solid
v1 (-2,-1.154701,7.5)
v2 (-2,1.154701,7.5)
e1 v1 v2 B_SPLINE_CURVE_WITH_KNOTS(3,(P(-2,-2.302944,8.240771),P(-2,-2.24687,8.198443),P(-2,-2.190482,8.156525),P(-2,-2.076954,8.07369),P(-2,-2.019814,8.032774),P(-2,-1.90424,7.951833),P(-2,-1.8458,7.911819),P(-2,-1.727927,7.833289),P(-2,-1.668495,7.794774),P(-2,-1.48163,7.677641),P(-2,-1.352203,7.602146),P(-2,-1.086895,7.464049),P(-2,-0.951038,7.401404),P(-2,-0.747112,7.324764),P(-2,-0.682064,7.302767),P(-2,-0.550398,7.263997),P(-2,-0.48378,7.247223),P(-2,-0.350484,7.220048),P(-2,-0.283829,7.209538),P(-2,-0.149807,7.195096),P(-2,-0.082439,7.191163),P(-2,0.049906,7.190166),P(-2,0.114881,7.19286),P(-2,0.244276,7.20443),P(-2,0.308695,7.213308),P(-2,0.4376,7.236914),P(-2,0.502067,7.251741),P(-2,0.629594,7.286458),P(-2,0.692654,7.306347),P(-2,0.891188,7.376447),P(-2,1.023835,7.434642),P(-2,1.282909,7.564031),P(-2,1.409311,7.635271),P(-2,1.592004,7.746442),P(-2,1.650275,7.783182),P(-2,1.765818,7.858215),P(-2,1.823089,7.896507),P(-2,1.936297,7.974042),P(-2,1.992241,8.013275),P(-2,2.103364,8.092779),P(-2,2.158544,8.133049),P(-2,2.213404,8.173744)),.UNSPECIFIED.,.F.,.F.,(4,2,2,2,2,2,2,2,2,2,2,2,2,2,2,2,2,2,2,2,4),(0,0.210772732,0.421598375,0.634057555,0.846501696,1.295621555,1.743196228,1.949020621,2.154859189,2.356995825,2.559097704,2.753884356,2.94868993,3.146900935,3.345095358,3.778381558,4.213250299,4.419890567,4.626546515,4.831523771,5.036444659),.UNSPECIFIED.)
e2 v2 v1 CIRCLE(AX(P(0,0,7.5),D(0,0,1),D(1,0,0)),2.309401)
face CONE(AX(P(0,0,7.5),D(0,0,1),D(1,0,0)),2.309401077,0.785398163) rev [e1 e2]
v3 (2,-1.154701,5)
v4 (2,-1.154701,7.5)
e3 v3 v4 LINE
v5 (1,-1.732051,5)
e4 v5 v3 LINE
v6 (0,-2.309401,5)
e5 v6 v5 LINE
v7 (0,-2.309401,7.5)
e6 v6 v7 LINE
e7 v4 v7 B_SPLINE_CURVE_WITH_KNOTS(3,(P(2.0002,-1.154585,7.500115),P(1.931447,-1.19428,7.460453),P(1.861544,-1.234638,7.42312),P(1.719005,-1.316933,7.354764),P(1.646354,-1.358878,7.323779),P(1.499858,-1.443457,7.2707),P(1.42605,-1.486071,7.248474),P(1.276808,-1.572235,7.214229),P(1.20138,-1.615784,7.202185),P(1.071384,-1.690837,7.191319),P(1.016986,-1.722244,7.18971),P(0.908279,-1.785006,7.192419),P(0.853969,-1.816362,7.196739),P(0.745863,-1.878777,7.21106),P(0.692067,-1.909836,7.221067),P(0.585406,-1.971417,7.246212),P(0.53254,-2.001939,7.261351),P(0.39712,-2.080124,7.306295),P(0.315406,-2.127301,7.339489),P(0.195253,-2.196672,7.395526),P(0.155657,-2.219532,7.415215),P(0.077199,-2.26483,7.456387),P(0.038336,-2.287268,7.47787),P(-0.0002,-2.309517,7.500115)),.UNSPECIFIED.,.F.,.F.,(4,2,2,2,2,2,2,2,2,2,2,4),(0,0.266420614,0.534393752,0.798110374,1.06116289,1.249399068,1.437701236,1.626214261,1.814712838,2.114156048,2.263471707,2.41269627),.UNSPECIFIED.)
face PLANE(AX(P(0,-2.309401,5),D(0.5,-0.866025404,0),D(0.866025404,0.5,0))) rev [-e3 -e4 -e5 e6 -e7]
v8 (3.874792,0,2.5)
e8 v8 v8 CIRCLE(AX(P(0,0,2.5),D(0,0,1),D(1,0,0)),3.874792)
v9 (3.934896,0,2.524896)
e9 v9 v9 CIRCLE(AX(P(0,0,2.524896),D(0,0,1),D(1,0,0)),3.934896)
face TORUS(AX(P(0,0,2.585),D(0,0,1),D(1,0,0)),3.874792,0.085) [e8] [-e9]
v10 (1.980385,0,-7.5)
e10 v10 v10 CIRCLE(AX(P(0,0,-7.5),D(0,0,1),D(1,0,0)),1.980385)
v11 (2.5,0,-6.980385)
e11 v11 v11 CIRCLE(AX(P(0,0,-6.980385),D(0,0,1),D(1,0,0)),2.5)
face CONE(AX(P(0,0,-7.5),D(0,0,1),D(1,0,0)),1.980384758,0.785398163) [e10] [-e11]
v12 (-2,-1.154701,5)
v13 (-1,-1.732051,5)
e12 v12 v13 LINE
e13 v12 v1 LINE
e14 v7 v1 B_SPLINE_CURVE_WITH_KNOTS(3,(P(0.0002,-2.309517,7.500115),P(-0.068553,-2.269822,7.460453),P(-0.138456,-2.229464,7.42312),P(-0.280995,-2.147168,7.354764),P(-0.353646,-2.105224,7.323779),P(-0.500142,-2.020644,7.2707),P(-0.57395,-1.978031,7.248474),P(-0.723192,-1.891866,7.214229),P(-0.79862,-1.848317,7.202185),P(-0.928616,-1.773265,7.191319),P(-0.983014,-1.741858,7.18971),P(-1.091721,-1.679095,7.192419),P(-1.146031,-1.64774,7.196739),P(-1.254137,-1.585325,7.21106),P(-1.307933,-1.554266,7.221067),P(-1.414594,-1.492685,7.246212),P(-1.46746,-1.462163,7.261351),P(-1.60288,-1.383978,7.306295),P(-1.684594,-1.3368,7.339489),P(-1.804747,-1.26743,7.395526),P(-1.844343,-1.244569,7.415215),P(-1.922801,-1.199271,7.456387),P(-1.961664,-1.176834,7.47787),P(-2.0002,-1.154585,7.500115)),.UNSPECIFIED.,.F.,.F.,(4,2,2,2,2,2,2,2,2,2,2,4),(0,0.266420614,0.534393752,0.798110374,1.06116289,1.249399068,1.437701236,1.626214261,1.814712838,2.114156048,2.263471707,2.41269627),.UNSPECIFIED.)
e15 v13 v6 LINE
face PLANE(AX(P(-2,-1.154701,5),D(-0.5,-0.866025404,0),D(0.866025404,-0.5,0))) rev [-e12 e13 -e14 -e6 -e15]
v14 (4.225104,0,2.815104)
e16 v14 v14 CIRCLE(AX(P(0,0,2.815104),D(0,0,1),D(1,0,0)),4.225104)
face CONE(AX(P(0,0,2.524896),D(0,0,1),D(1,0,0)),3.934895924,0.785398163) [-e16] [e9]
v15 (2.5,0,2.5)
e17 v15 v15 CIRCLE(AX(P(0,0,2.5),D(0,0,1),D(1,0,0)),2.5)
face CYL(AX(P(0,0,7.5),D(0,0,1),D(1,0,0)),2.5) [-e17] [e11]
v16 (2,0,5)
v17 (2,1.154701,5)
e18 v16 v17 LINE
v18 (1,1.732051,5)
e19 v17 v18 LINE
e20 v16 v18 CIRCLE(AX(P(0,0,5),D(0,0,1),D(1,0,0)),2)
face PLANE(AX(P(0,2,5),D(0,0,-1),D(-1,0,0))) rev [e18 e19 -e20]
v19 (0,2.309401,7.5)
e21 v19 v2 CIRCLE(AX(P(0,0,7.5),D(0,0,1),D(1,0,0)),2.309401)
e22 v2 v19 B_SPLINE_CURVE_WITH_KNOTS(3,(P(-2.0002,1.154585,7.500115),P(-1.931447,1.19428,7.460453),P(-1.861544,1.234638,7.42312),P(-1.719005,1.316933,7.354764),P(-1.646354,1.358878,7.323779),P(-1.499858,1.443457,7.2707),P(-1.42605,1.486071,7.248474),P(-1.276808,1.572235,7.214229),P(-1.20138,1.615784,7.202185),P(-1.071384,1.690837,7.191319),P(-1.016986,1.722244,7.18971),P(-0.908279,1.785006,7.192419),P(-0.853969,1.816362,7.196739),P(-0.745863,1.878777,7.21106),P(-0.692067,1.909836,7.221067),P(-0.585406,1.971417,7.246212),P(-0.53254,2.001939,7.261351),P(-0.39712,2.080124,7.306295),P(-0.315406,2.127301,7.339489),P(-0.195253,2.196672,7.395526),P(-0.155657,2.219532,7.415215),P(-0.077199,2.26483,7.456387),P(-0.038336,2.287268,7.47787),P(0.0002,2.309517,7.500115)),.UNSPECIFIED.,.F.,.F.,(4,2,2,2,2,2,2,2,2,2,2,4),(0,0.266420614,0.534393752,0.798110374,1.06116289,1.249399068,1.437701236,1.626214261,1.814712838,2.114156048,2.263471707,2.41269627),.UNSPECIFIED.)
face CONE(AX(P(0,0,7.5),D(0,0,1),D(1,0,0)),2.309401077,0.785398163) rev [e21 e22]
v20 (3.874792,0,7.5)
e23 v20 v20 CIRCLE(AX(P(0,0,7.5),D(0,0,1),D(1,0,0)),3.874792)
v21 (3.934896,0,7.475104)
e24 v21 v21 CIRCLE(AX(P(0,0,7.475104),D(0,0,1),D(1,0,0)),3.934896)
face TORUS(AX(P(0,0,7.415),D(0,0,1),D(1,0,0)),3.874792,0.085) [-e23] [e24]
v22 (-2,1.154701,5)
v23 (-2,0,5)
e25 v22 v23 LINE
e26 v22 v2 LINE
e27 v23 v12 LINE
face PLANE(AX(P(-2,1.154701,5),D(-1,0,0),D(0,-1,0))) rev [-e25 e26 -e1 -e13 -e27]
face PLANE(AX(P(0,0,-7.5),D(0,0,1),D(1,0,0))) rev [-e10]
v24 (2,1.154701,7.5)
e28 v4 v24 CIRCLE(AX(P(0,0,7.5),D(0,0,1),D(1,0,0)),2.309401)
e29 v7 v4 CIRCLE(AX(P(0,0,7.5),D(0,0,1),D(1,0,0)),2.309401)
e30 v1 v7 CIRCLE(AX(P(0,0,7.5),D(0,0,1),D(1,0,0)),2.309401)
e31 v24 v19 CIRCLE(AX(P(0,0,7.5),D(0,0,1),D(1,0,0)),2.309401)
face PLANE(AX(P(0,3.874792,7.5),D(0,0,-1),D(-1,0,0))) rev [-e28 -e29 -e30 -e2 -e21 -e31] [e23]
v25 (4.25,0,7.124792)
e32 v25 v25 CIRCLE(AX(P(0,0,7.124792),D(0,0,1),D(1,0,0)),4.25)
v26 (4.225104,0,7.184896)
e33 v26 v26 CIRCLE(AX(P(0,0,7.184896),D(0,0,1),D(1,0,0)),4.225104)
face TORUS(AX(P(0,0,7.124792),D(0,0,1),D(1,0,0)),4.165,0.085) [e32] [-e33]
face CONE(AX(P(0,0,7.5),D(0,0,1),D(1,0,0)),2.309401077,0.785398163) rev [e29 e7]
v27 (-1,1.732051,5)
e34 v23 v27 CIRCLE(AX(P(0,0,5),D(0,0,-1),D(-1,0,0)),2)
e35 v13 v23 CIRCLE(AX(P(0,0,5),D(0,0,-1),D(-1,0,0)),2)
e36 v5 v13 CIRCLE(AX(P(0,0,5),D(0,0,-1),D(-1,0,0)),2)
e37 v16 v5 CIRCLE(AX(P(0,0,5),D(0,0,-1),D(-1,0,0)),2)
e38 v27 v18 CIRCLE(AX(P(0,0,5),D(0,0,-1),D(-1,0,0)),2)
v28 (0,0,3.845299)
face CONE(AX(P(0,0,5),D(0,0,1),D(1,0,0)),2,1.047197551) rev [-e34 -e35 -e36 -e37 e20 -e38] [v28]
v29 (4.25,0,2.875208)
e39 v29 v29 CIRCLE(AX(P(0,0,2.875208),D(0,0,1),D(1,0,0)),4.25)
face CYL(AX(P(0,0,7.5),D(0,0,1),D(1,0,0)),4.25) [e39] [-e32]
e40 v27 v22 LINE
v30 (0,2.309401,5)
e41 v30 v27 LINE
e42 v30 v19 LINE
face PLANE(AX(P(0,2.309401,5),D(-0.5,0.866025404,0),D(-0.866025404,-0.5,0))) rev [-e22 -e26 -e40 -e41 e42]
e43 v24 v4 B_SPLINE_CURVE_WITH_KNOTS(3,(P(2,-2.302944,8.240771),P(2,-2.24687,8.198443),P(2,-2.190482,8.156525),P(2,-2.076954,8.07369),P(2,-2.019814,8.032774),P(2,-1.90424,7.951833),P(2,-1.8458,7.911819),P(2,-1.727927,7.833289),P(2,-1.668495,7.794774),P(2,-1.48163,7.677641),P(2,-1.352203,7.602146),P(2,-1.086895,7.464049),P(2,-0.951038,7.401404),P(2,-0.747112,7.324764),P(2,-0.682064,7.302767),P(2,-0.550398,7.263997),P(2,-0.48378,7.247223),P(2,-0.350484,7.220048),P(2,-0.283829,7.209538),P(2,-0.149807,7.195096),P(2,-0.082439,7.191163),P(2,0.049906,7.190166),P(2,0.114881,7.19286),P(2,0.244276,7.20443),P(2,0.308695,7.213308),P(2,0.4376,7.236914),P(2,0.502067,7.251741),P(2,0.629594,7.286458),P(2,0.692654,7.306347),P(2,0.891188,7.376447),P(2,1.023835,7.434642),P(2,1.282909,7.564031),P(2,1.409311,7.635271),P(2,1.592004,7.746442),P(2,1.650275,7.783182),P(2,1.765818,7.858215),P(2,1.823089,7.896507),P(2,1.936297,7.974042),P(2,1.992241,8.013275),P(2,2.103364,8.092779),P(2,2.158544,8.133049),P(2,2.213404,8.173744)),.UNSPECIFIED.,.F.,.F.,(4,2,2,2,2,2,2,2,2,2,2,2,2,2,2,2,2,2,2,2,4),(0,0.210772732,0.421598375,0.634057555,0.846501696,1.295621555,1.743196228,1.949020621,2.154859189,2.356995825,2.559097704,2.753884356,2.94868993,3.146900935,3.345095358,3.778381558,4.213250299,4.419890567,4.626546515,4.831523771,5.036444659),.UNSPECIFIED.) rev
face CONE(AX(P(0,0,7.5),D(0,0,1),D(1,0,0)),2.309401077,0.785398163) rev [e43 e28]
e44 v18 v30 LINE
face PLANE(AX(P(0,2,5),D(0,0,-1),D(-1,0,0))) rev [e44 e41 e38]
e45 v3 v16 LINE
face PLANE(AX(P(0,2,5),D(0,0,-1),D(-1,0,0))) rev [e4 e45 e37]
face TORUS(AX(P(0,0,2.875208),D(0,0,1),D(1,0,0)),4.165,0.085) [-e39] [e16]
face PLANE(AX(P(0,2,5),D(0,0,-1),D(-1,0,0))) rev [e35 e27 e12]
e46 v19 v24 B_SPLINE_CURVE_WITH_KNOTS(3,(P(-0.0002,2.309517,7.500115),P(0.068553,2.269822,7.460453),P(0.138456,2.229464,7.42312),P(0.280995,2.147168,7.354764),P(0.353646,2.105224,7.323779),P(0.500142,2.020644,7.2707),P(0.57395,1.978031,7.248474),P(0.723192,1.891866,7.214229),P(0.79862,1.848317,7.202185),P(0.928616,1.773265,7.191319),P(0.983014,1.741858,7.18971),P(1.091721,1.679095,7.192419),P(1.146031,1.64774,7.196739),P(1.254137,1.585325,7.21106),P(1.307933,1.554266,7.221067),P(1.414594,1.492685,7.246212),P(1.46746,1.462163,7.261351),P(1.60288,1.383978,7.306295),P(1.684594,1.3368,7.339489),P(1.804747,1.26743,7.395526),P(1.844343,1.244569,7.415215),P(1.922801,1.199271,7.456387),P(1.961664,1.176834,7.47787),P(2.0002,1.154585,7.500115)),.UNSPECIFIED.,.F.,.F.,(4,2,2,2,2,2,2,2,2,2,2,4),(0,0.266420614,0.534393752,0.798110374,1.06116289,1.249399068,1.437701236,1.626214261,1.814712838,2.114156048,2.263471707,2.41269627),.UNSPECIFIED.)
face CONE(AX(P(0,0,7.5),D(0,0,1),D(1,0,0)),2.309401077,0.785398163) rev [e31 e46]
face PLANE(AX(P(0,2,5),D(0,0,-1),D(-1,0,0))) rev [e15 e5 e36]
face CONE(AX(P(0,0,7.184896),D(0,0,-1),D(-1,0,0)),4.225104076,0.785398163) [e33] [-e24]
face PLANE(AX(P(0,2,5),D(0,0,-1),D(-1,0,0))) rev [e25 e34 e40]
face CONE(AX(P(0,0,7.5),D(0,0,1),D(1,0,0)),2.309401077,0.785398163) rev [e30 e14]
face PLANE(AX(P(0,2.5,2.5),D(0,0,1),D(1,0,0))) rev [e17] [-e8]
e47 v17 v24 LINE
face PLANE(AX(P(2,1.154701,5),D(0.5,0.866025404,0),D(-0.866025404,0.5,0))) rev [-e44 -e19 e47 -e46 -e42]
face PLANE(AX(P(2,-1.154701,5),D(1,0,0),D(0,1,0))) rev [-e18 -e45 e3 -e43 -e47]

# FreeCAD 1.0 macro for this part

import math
import FreeCAD as App
import Part
import Sketcher

V = App.Vector
Q = App.Units.Quantity


def add_polygon(sketch, points):
    """Adds a closed chain of lines whose ends are joined by coincident constraints."""
    first, n = sketch.GeometryCount, len(points)
    for a, b in zip(points, points[1:] + points[:1]):
        sketch.addGeometry(Part.LineSegment(App.Vector(*a, 0), App.Vector(*b, 0)), False)
    for i in range(n):
        sketch.addConstraint(Sketcher.Constraint("Coincident", first + i, 2, first + (i + 1) % n, 1))

doc = App.newDocument("Part")
body = doc.addObject("PartDesign::Body", "Body")

# Sketch on YZ plane
sketch1 = body.newObject("Sketcher::SketchObject", "Sketch")
sketch1.AttachmentSupport = (doc.getObject("YZ_Plane"), [""])
sketch1.MapMode = "FlatFace"
sketch1.addGeometry(Part.LineSegment(V(3.87, 7.5, 0), V(2, 7.5, 0)), False)
sketch1.addGeometry(Part.LineSegment(V(2, 7.5, 0), V(2, 5, 0)), False)
sketch1.addGeometry(Part.LineSegment(V(2, 5, 0), V(0, 5, 0)), False)
sketch1.addGeometry(Part.LineSegment(V(0, 5, 0), V(0, -7.5, 0)), False)
sketch1.addGeometry(Part.LineSegment(V(0, -7.5, 0), V(1.98, -7.5, 0)), False)
sketch1.addGeometry(Part.LineSegment(V(1.98, -7.5, 0), V(2.5, -6.98, 0)), False)
sketch1.addGeometry(Part.LineSegment(V(2.5, -6.98, 0), V(2.5, 2.5, 0)), False)
sketch1.addGeometry(Part.LineSegment(V(2.5, 2.5, 0), V(3.87, 2.5, 0)), False)
sketch1.addGeometry(Part.ArcOfCircle(Part.Circle(V(3.87, 2.59, 0), V(0, 0, 1), 0.09), math.radians(-90), math.radians(-45)), False)
sketch1.addGeometry(Part.LineSegment(V(3.93, 2.52, 0), V(4.23, 2.82, 0)), False)
sketch1.addGeometry(Part.ArcOfCircle(Part.Circle(V(4.16, 2.88, 0), V(0, 0, 1), 0.09), math.radians(-45), math.radians(0)), False)
sketch1.addGeometry(Part.LineSegment(V(4.25, 2.88, 0), V(4.25, 7.12, 0)), False)
sketch1.addGeometry(Part.ArcOfCircle(Part.Circle(V(4.16, 7.12, 0), V(0, 0, 1), 0.09), math.radians(0), math.radians(45)), False)
sketch1.addGeometry(Part.LineSegment(V(4.23, 7.18, 0), V(3.93, 7.48, 0)), False)
sketch1.addGeometry(Part.ArcOfCircle(Part.Circle(V(3.87, 7.41, 0), V(0, 0, 1), 0.09), math.radians(45), math.radians(90)), False)
sketch1.addConstraint(Sketcher.Constraint("Coincident", 0, 2, 1, 1))
sketch1.addConstraint(Sketcher.Constraint("Coincident", 1, 2, 2, 1))
sketch1.addConstraint(Sketcher.Constraint("Coincident", 2, 2, 3, 1))
sketch1.addConstraint(Sketcher.Constraint("Coincident", 3, 2, 4, 1))
sketch1.addConstraint(Sketcher.Constraint("Coincident", 4, 2, 5, 1))
sketch1.addConstraint(Sketcher.Constraint("Coincident", 5, 2, 6, 1))
sketch1.addConstraint(Sketcher.Constraint("Coincident", 6, 2, 7, 1))
sketch1.addConstraint(Sketcher.Constraint("Tangent", 7, 2, 8, 1))
sketch1.addConstraint(Sketcher.Constraint("Tangent", 8, 2, 9, 1))
sketch1.addConstraint(Sketcher.Constraint("Tangent", 9, 2, 10, 1))
sketch1.addConstraint(Sketcher.Constraint("Tangent", 10, 2, 11, 1))
sketch1.addConstraint(Sketcher.Constraint("Tangent", 11, 2, 12, 1))
sketch1.addConstraint(Sketcher.Constraint("Tangent", 12, 2, 13, 1))
sketch1.addConstraint(Sketcher.Constraint("Tangent", 13, 2, 14, 1))
sketch1.addConstraint(Sketcher.Constraint("Tangent", 14, 2, 0, 1))
sketch1.addConstraint(Sketcher.Constraint("Horizontal", 0))
sketch1.addConstraint(Sketcher.Constraint("Vertical", 1))
sketch1.addConstraint(Sketcher.Constraint("Horizontal", 2))
sketch1.addConstraint(Sketcher.Constraint("Vertical", 3))
sketch1.addConstraint(Sketcher.Constraint("Horizontal", 4))
sketch1.addConstraint(Sketcher.Constraint("Vertical", 6))
sketch1.addConstraint(Sketcher.Constraint("Horizontal", 7))
sketch1.addConstraint(Sketcher.Constraint("Vertical", 11))
sketch1.addConstraint(Sketcher.Constraint("Equal", 8, 10))
sketch1.addConstraint(Sketcher.Constraint("Equal", 10, 12))
sketch1.addConstraint(Sketcher.Constraint("Equal", 12, 14))
sketch1.addConstraint(Sketcher.Constraint("PointOnObject", 2, 2, -2))
sketch1.addConstraint(Sketcher.Constraint("Parallel", 5, 9))
sketch1.addConstraint(Sketcher.Constraint("Perpendicular", 9, 13))
sketch1.addConstraint(Sketcher.Constraint("Vertical", 8, 3, 14, 3))
sketch1.addConstraint(Sketcher.Constraint("Vertical", 9, 2, 12, 2))
sketch1.addConstraint(Sketcher.Constraint("DistanceX", 2, 2, 2, 1, Q("2 mm")))
sketch1.addConstraint(Sketcher.Constraint("DistanceY", 1, 2, 1, 1, Q("2.5 mm")))
sketch1.addConstraint(Sketcher.Constraint("DistanceY", 3, 2, 3, 1, Q("12.5 mm")))
sketch1.addConstraint(Sketcher.Constraint("DistanceY", -1, 1, 1, 2, Q("5 mm")))
sketch1.addConstraint(Sketcher.Constraint("Radius", 8, Q("0.085 mm")))
sketch1.addConstraint(Sketcher.Constraint("DistanceX", -1, 1, 5, 2, Q("2.5 mm")))
sketch1.addConstraint(Sketcher.Constraint("DistanceY", -1, 1, 6, 2, Q("2.5 mm")))
sketch1.addConstraint(Sketcher.Constraint("DistanceX", -1, 1, 10, 2, Q("4.25 mm")))
sketch1.addConstraint(Sketcher.Constraint("DistanceX", 0, 2, 0, 1, Q("1.874792 mm")))
sketch1.addConstraint(Sketcher.Constraint("DistanceX", 4, 1, 4, 2, Q("1.980385 mm")))
revolution = body.newObject("PartDesign::Revolution", "Revolution")
revolution.Profile = sketch1
revolution.ReferenceAxis = (sketch1, ["V_Axis"])
revolution.Angle = 360

# Sketch on XY plane
sketch2 = body.newObject("Sketcher::SketchObject", "Sketch001")
sketch2.AttachmentSupport = (doc.getObject("XY_Plane"), [""])
sketch2.MapMode = "FlatFace"
sketch2.AttachmentOffset = App.Placement(V(0, 0, 7.5), App.Rotation())
add_polygon(sketch2, [(0, 2.3), (-2, 1.2), (-2, -1.2), (0, -2.3), (2, -1.2), (2, 1.2)])  # lines 0-5
sketch2.addConstraint(Sketcher.Constraint("Vertical", 1))
sketch2.addConstraint(Sketcher.Constraint("Vertical", 4))
sketch2.addConstraint(Sketcher.Constraint("Symmetric", 0, 2, 3, 2, -1, 1))
sketch2.addConstraint(Sketcher.Constraint("Symmetric", 2, 2, 5, 2, -1, 1))
sketch2.addConstraint(Sketcher.Constraint("PointOnObject", 2, 2, -2))
sketch2.addConstraint(Sketcher.Constraint("Parallel", 2, 5))
sketch2.addConstraint(Sketcher.Constraint("Horizontal", 1, 2, 3, 2))
sketch2.addConstraint(Sketcher.Constraint("Angle", 0, Q("-150 deg")))
sketch2.addConstraint(Sketcher.Constraint("DistanceX", 0, 2, -1, 1, Q("2 mm")))
sketch2.addConstraint(Sketcher.Constraint("DistanceY", 1, 2, 1, 1, Q("2.309401 mm")))
pocket1 = body.newObject("PartDesign::Pocket", "Pocket")
pocket1.Profile = sketch2
pocket1.Length = 2.5

# Sketch on YZ plane
sketch3 = body.newObject("Sketcher::SketchObject", "Sketch002")
sketch3.AttachmentSupport = (doc.getObject("YZ_Plane"), [""])
sketch3.MapMode = "FlatFace"
add_polygon(sketch3, [(0, 7.5), (-2.3, 7.5), (0, 5.2)])  # lines 0-2
sketch3.addConstraint(Sketcher.Constraint("Horizontal", 0))
sketch3.addConstraint(Sketcher.Constraint("Vertical", 2))
sketch3.addConstraint(Sketcher.Constraint("PointOnObject", 1, 2, -2))
sketch3.addConstraint(Sketcher.Constraint("Equal", 0, 2))
sketch3.addConstraint(Sketcher.Constraint("DistanceY", -1, 1, 0, 2, Q("7.5 mm")))
sketch3.addConstraint(Sketcher.Constraint("DistanceX", 0, 2, 0, 1, Q("2.309401 mm")))
groove = body.newObject("PartDesign::Groove", "Groove")
groove.Profile = sketch3
groove.ReferenceAxis = (sketch3, ["V_Axis"])
groove.Angle = 360

# Sketch on YZ plane
sketch4 = body.newObject("Sketcher::SketchObject", "Sketch003")
sketch4.AttachmentSupport = (doc.getObject("YZ_Plane"), [""])
sketch4.MapMode = "FlatFace"
add_polygon(sketch4, [(0, 5), (-2, 5), (0, 3.8)])  # lines 0-2
sketch4.addConstraint(Sketcher.Constraint("Horizontal", 0))
sketch4.addConstraint(Sketcher.Constraint("Vertical", 2))
sketch4.addConstraint(Sketcher.Constraint("PointOnObject", 1, 2, -2))
sketch4.addConstraint(Sketcher.Constraint("DistanceX", 0, 2, 0, 1, Q("2 mm")))
sketch4.addConstraint(Sketcher.Constraint("Angle", 1, Q("-30 deg")))
sketch4.addConstraint(Sketcher.Constraint("DistanceY", -1, 1, 0, 2, Q("5 mm")))
groove2 = body.newObject("PartDesign::Groove", "Groove001")
groove2.Profile = sketch4
groove2.ReferenceAxis = (sketch4, ["V_Axis"])
groove2.Angle = 360

doc.recompute()
